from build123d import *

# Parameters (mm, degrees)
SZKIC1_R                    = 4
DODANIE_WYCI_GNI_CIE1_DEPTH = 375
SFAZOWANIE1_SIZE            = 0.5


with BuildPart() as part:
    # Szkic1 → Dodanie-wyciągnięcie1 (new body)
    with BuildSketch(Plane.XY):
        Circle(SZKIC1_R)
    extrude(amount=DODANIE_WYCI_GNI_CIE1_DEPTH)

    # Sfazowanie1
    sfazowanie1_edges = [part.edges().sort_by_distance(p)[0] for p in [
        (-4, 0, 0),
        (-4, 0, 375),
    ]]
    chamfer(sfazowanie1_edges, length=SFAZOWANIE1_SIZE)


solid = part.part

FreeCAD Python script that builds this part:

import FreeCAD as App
import Part
import Sketcher


def edges_at(feature, points):
    """Names of the edges that pass closest to the given points."""
    edges = feature.Shape.Edges
    near = lambda p: min(range(len(edges)), key=lambda i: edges[i].distToShape(Part.Vertex(*p))[0])
    return sorted({f"Edge{near(p) + 1}" for p in points})

doc = App.newDocument("Part")
params = doc.addObject("Spreadsheet::Sheet", "Params")
for row, (alias, value) in enumerate([
    ("sketch1_diameter", "8 mm"),
    ("pad1_length", "375 mm"),
    ("chamfer_size", "0.5 mm"),
], start=1):
    params.set(f"A{row}", alias)
    params.set(f"B{row}", "=" + value)
    params.setAlias(f"B{row}", alias)

body = doc.addObject("PartDesign::Body", "Body")

# Sketch on XY plane
sketch1 = body.newObject("Sketcher::SketchObject", "Sketch")
sketch1.AttachmentSupport = (doc.getObject("XY_Plane"), [""])
sketch1.MapMode = "FlatFace"
sketch1.addGeometry(Part.Circle(App.Vector(0, 0, 0), App.Vector(0, 0, 1), 4), False)
sketch1.addConstraint([
    Sketcher.Constraint("Coincident", 0, 3, -1, 1),
    Sketcher.Constraint("Diameter", 0, 8.0),
])
sketch1.setExpression("Constraints[1]", "Params.sketch1_diameter")
pad1 = body.newObject("PartDesign::Pad", "Pad")
pad1.Profile = sketch1
pad1.setExpression("Length", "Params.pad1_length")
doc.recompute()

chamfer = body.newObject("PartDesign::Chamfer", "Chamfer")
chamfer.Base = (pad1, edges_at(pad1, [(-4, 0, 0), (-4, 0, 375)]))
chamfer.setExpression("Size", "Params.chamfer_size")

doc.recompute()
